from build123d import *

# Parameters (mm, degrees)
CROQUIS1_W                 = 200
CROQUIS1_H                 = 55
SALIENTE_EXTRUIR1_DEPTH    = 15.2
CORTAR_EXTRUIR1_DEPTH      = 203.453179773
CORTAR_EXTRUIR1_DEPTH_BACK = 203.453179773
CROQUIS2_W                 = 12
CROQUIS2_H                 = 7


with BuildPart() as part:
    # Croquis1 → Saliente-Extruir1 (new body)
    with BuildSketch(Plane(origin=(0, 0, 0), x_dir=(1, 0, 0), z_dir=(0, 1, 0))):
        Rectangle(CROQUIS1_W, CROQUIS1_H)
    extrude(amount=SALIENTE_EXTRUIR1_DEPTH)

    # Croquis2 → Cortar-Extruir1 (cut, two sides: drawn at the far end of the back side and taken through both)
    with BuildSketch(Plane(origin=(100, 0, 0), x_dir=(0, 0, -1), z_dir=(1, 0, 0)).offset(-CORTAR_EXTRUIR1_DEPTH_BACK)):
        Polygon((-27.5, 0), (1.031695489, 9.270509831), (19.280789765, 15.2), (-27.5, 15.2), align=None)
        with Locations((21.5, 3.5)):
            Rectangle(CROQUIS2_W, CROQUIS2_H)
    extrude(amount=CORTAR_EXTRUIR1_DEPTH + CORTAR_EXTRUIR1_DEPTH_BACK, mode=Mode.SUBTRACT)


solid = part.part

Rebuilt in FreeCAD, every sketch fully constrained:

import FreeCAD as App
import Part
import Sketcher

V = App.Vector
Q = App.Units.Quantity

doc = App.newDocument("Part")
body = doc.addObject("PartDesign::Body", "Body")

sketch1 = body.newObject("Sketcher::SketchObject", "Sketch")
sketch1.AttachmentSupport = (doc.getObject("XZ_Plane"), [""])
sketch1.MapMode = "FlatFace"
sketch1.addGeometry(Part.LineSegment(V(-100, -28, 0), V(-100, 28, 0)), False)
sketch1.addGeometry(Part.LineSegment(V(-100, 28, 0), V(100, 28, 0)), False)
sketch1.addGeometry(Part.LineSegment(V(100, 28, 0), V(100, -28, 0)), False)
sketch1.addGeometry(Part.LineSegment(V(100, -28, 0), V(-100, -28, 0)), False)
sketch1.addConstraint(Sketcher.Constraint("Coincident", 0, 2, 1, 1))
sketch1.addConstraint(Sketcher.Constraint("Coincident", 1, 2, 2, 1))
sketch1.addConstraint(Sketcher.Constraint("Coincident", 2, 2, 3, 1))
sketch1.addConstraint(Sketcher.Constraint("Coincident", 3, 2, 0, 1))
sketch1.addConstraint(Sketcher.Constraint("Vertical", 0))
sketch1.addConstraint(Sketcher.Constraint("Horizontal", 1))
sketch1.addConstraint(Sketcher.Constraint("Vertical", 2))
sketch1.addConstraint(Sketcher.Constraint("Horizontal", 3))
sketch1.addConstraint(Sketcher.Constraint("Symmetric", 0, 2, 2, 2, -1, 1))
sketch1.addConstraint(Sketcher.Constraint("DistanceX", 1, 1, 1, 2, 200.0))
sketch1.addConstraint(Sketcher.Constraint("DistanceY", 0, 1, 0, 2, 55.0))
pad1 = body.newObject("PartDesign::Pad", "Pad")
pad1.Profile = sketch1
pad1.Length = 15.2
pad1.Reversed = True

sketch2 = body.newObject("Sketcher::SketchObject", "Sketch001")
sketch2.AttachmentSupport = (doc.getObject("YZ_Plane"), [""])
sketch2.MapMode = "FlatFace"
sketch2.AttachmentOffset = App.Placement(V(0, 0, 100), App.Rotation())
sketch2.addGeometry(Part.LineSegment(V(0, 28, 0), V(9, -1, 0)), False)
sketch2.addGeometry(Part.LineSegment(V(9, -1, 0), V(15, -19, 0)), False)
sketch2.addGeometry(Part.LineSegment(V(15, -19, 0), V(15, 28, 0)), False)
sketch2.addGeometry(Part.LineSegment(V(15, 28, 0), V(0, 28, 0)), False)
sketch2.addGeometry(Part.LineSegment(V(7, -16, 0), V(0, -16, 0)), False)
sketch2.addGeometry(Part.LineSegment(V(0, -16, 0), V(0, -28, 0)), False)
sketch2.addGeometry(Part.LineSegment(V(0, -28, 0), V(7, -28, 0)), False)
sketch2.addGeometry(Part.LineSegment(V(7, -28, 0), V(7, -16, 0)), False)
sketch2.addConstraint(Sketcher.Constraint("Coincident", 0, 2, 1, 1))
sketch2.addConstraint(Sketcher.Constraint("Coincident", 1, 2, 2, 1))
sketch2.addConstraint(Sketcher.Constraint("Coincident", 2, 2, 3, 1))
sketch2.addConstraint(Sketcher.Constraint("Coincident", 3, 2, 0, 1))
sketch2.addConstraint(Sketcher.Constraint("Coincident", 4, 2, 5, 1))
sketch2.addConstraint(Sketcher.Constraint("Coincident", 5, 2, 6, 1))
sketch2.addConstraint(Sketcher.Constraint("Coincident", 6, 2, 7, 1))
sketch2.addConstraint(Sketcher.Constraint("Coincident", 7, 2, 4, 1))
sketch2.addConstraint(Sketcher.Constraint("Vertical", 2))
sketch2.addConstraint(Sketcher.Constraint("Horizontal", 3))
sketch2.addConstraint(Sketcher.Constraint("Horizontal", 4))
sketch2.addConstraint(Sketcher.Constraint("Vertical", 5))
sketch2.addConstraint(Sketcher.Constraint("Horizontal", 6))
sketch2.addConstraint(Sketcher.Constraint("Vertical", 7))
sketch2.addConstraint(Sketcher.Constraint("Symmetric", 3, 2, 5, 2, -1, 1))
sketch2.addConstraint(Sketcher.Constraint("PointOnObject", 3, 2, -2))
sketch2.addConstraint(Sketcher.Constraint("Parallel", 0, 1))
sketch2.addConstraint(Sketcher.Constraint("DistanceX", 4, 2, 4, 1, 7.0))
sketch2.addConstraint(Sketcher.Constraint("DistanceY", 5, 2, 5, 1, 12.0))
sketch2.addConstraint(Sketcher.Constraint("Angle", 0, Q("-72 deg")))
sketch2.addConstraint(Sketcher.Constraint("Distance", 0, 30.0))
sketch2.addConstraint(Sketcher.Constraint("DistanceX", 3, 2, 3, 1, 15.2))
sketch2.addConstraint(Sketcher.Constraint("DistanceY", 4, 2, 3, 2, 43.0))
pocket1 = body.newObject("PartDesign::Pocket", "Pocket")
pocket1.Profile = sketch2
pocket1.Type = "ThroughAll"
pocket1.Midplane = True

doc.recompute()
